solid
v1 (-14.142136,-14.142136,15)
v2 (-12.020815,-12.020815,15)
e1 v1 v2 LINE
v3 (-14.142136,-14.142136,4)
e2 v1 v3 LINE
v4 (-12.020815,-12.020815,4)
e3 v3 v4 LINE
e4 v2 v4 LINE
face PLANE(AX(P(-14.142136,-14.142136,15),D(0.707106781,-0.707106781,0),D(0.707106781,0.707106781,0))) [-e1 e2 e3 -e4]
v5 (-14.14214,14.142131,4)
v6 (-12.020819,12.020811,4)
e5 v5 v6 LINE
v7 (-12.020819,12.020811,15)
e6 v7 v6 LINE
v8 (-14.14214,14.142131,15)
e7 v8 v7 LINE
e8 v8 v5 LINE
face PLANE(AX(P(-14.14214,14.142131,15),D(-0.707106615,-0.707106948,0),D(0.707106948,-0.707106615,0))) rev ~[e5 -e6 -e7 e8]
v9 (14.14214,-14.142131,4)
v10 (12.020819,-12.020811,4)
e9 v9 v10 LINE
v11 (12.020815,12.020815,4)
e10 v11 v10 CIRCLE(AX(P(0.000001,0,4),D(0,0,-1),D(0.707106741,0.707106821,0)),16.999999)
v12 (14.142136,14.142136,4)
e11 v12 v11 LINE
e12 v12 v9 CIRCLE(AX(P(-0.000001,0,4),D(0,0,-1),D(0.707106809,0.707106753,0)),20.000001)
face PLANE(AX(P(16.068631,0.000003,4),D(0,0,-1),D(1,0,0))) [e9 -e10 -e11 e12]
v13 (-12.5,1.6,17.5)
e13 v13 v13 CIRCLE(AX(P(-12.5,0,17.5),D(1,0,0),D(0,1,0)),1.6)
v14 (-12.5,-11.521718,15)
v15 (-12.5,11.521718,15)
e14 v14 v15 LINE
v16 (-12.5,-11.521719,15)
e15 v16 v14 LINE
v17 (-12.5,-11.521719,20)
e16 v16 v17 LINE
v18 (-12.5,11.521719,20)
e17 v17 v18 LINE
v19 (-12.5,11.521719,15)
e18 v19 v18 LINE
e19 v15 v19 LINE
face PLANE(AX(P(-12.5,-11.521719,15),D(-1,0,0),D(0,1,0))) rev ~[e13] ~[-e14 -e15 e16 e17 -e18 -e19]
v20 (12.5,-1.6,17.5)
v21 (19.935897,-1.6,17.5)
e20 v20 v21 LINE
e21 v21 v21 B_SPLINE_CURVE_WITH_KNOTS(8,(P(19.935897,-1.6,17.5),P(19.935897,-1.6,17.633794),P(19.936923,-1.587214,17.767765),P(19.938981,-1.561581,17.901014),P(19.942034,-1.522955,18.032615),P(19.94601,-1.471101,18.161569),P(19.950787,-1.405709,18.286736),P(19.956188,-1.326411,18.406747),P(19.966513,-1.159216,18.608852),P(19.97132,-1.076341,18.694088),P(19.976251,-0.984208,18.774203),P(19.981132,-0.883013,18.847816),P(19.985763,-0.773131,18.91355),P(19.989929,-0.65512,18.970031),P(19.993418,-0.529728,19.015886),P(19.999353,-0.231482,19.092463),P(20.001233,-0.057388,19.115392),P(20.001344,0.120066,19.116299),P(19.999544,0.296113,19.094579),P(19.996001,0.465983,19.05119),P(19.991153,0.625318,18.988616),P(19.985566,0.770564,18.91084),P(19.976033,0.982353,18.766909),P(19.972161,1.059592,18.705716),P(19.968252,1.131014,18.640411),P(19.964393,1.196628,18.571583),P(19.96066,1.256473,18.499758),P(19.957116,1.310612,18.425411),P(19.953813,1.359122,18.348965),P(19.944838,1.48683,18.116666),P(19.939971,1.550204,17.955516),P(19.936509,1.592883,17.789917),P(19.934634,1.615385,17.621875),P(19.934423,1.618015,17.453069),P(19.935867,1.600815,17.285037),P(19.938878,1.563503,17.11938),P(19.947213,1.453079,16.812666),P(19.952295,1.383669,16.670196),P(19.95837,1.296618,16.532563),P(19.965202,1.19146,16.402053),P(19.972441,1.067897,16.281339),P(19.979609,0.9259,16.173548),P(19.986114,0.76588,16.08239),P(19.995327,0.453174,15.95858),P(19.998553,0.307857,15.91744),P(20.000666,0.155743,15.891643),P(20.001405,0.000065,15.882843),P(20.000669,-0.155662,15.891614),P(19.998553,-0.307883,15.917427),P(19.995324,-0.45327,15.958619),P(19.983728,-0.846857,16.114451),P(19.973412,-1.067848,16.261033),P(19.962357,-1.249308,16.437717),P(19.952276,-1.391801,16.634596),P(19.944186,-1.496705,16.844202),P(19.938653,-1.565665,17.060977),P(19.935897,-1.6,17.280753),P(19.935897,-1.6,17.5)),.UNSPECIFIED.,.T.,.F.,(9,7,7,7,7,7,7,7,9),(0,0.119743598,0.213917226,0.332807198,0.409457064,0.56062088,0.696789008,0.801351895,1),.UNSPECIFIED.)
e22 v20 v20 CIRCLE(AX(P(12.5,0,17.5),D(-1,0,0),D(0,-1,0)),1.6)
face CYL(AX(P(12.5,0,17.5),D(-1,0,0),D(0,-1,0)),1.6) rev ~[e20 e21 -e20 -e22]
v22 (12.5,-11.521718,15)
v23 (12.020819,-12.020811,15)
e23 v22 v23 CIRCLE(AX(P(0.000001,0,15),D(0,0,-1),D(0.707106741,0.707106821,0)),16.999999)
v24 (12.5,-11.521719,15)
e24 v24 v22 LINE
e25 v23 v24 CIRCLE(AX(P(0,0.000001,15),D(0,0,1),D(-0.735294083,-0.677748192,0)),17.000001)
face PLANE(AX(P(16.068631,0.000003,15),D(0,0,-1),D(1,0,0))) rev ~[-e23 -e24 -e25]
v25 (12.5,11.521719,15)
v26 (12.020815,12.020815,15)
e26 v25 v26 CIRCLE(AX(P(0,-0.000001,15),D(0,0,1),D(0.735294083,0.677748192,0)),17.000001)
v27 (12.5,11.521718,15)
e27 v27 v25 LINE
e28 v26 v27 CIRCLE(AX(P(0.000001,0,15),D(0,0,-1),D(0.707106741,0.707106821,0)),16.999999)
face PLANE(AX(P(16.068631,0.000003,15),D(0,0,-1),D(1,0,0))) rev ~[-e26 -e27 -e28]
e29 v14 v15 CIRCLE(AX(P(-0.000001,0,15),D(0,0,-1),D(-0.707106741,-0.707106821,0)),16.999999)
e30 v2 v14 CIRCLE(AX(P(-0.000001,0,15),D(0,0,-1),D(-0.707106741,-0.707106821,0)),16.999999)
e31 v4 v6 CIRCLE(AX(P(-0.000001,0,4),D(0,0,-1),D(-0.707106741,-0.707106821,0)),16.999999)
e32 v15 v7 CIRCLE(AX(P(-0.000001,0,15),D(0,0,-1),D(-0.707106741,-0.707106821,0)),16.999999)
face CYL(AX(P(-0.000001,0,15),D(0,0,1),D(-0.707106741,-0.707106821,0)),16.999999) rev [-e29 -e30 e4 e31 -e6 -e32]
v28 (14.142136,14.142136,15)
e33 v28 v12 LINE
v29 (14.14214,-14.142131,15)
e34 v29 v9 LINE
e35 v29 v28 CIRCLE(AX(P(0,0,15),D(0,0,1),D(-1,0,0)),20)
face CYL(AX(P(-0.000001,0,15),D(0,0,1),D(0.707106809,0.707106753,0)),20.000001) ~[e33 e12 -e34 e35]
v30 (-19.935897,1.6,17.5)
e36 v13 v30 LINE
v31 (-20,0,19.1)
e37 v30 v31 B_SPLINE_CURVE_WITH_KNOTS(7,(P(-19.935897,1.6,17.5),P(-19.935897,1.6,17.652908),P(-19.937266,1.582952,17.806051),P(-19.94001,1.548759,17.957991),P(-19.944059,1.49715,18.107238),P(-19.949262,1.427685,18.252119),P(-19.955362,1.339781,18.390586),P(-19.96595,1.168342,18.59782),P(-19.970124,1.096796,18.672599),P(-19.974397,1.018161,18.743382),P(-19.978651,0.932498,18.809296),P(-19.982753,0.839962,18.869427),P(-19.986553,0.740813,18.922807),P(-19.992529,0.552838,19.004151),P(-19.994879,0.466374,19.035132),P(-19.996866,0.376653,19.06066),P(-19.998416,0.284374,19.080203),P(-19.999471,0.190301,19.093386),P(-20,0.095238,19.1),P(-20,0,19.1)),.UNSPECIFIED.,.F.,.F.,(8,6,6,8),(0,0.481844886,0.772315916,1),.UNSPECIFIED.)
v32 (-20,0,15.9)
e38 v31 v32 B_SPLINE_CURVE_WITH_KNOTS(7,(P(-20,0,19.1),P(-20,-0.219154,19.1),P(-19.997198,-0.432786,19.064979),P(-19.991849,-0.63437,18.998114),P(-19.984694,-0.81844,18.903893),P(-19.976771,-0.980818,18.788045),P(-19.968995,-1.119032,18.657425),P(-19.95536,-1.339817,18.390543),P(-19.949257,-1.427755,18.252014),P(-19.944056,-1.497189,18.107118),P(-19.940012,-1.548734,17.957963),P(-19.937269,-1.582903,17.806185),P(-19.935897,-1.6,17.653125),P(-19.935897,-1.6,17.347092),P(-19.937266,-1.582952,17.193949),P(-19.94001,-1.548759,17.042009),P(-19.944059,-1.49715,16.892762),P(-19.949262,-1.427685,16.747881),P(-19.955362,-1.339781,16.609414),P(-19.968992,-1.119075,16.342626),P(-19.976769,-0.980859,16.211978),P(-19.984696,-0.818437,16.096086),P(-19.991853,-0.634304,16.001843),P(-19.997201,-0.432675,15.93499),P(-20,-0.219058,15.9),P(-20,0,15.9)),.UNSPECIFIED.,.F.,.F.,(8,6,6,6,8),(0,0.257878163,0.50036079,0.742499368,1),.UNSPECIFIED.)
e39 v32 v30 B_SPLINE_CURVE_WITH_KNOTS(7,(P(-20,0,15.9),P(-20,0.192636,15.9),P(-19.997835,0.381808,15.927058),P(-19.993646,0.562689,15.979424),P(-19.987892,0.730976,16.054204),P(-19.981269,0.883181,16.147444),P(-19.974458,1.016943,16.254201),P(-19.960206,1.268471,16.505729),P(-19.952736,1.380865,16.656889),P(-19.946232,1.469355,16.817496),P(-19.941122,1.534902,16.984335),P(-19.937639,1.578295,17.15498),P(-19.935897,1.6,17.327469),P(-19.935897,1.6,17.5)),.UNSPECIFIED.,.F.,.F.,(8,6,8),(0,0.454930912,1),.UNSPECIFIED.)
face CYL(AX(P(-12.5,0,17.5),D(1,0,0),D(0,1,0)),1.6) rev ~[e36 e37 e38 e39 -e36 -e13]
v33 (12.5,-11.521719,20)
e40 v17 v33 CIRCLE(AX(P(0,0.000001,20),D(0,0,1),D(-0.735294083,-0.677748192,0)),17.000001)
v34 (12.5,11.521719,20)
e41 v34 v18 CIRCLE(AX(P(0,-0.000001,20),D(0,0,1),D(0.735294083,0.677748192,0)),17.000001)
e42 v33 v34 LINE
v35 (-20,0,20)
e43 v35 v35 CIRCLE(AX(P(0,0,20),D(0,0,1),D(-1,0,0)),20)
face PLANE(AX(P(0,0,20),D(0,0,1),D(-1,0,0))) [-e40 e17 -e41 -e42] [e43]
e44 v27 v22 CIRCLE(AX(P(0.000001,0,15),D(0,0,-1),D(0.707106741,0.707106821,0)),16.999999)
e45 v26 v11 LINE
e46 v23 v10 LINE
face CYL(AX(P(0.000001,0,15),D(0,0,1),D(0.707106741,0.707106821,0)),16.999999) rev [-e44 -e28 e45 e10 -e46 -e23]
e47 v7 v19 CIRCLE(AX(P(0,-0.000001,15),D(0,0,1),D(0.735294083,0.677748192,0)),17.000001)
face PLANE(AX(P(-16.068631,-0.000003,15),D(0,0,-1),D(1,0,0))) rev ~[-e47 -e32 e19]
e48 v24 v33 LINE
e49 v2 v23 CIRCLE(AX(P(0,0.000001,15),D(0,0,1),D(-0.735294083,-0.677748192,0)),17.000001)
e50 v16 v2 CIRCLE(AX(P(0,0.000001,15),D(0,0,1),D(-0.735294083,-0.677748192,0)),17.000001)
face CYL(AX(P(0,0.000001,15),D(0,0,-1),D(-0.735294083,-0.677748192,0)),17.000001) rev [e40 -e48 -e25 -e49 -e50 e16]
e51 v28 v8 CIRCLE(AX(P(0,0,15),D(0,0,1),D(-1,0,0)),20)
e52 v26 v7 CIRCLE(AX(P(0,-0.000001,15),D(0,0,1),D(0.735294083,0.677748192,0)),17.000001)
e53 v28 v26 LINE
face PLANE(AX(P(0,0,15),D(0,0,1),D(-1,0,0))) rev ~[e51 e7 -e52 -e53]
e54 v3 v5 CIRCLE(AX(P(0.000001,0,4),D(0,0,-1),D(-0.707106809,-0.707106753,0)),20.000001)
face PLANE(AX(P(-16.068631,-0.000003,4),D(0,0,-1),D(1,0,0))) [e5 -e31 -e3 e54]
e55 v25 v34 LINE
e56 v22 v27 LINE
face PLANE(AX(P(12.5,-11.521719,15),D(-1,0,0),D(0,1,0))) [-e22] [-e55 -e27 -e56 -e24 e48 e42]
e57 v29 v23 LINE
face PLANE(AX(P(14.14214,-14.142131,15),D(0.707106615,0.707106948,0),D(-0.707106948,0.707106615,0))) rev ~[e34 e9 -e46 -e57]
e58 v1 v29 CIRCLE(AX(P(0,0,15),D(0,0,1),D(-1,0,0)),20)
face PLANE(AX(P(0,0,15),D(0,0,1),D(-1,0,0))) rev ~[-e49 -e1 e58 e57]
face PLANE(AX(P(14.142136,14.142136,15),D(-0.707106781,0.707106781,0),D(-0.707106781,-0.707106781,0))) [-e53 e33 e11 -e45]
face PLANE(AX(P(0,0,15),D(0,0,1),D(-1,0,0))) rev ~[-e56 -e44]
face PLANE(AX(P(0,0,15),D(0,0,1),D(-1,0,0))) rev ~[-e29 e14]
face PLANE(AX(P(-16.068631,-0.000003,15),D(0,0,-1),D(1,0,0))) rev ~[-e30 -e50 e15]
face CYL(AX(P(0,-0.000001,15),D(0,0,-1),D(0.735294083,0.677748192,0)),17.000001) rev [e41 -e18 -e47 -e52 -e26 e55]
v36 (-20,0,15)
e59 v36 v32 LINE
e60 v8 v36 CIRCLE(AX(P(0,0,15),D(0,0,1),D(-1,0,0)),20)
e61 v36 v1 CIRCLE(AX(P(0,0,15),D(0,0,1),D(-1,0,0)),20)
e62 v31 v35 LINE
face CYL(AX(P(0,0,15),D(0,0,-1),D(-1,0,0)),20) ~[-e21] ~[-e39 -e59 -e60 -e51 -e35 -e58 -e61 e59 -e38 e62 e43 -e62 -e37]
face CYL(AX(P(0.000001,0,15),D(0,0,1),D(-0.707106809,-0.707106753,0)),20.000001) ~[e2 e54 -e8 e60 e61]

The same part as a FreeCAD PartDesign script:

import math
import FreeCAD as App
import Part
import Sketcher

V = App.Vector
Q = App.Units.Quantity

doc = App.newDocument("Part")
params = doc.addObject("Spreadsheet::Sheet", "Params")
for row, (alias, value) in enumerate([
    ("sketch1_diameter", "40 mm"),
    ("sketch1_radius", "17.000001 mm"),
    ("pad1_length", "5 mm"),
    ("sketch2_radius", "20.000001 mm"),
    ("sketch2_radius2", "16.999999 mm"),
    ("pad2_length", "11 mm"),
    ("sketch3_diameter", "3.2 mm"),
    ("sketch4_diameter", "3.2 mm"),
], start=1):
    params.set(f"A{row}", alias)
    params.set(f"B{row}", "=" + value)
    params.setAlias(f"B{row}", alias)

body = doc.addObject("PartDesign::Body", "Body")

# Sketch on XY plane
sketch1 = doc.addObject("Sketcher::SketchObject", "Sketch")
body.addObject(sketch1)
sketch1.AttachmentSupport = (doc.XY_Plane, [""])
sketch1.MapMode = "FlatFace"
sketch1.AttachmentOffset = App.Placement(V(0, 0, 15), App.Rotation())
sketch1.addGeometry([
    Part.Circle(V(0, 0, 0), V(0, 0, 1), 20),  # 0
    Part.ArcOfCircle(Part.Circle(V(0, 0, 0), V(0, 0, 1), 17), math.radians(-137), math.radians(-43)),  # 1
    Part.LineSegment(V(-12, -12, 0), V(-12, 12, 0)),  # 2
    Part.ArcOfCircle(Part.Circle(V(0, 0, 0), V(0, 0, 1), 17), math.radians(43), math.radians(137)),  # 3
    Part.LineSegment(V(12, 12, 0), V(12, -12, 0)),  # 4
], False)
sketch1.addConstraint([
    Sketcher.Constraint("Coincident", 1, 1, 2, 1),
    Sketcher.Constraint("Coincident", 2, 2, 3, 2),
    Sketcher.Constraint("Coincident", 3, 1, 4, 1),
    Sketcher.Constraint("Coincident", 4, 2, 1, 2),
    Sketcher.Constraint("Vertical", 2),
    Sketcher.Constraint("Vertical", 4),
    Sketcher.Constraint("Coincident", 0, 3, -1, 1),
    Sketcher.Constraint("Coincident", 1, 3, -1, 1),
    Sketcher.Constraint("Coincident", 3, 3, -1, 1),
    Sketcher.Constraint("Equal", 1, 3),
    Sketcher.Constraint("Horizontal", 2, 2, 3, 1),
    Sketcher.Constraint("Diameter", 0, 40.0),
    Sketcher.Constraint("Radius", 1, 17.000001),
    Sketcher.Constraint("DistanceX", 2, 2, 3, 1, 25.0),
])
sketch1.setExpression("Constraints[11]", "Params.sketch1_diameter")
sketch1.setExpression("Constraints[12]", "Params.sketch1_radius")
pad1 = doc.addObject("PartDesign::Pad", "Pad")
body.addObject(pad1)
pad1.Profile = sketch1
pad1.setExpression("Length", "Params.pad1_length")

# Sketch on XY plane
sketch2 = doc.addObject("Sketcher::SketchObject", "Sketch001")
body.addObject(sketch2)
sketch2.AttachmentSupport = (doc.XY_Plane, [""])
sketch2.MapMode = "FlatFace"
sketch2.AttachmentOffset = App.Placement(V(0, 0, 15), App.Rotation())
sketch2.addGeometry([
    Part.ArcOfCircle(Part.Circle(V(0, 0, 0), V(0, 0, 1), 20), math.radians(135), math.radians(225)),  # 0
    Part.LineSegment(V(-14.1, 14.1, 0), V(-12, 12, 0)),  # 1
    Part.ArcOfCircle(Part.Circle(V(0, 0, 0), V(0, 0, 1), 17), math.radians(135), math.radians(225)),  # 2
    Part.LineSegment(V(-12, -12, 0), V(-14.1, -14.1, 0)),  # 3
    Part.ArcOfCircle(Part.Circle(V(0, 0, 0), V(0, 0, 1), 20), math.radians(-45), math.radians(45)),  # 4
    Part.LineSegment(V(14.1, -14.1, 0), V(12, -12, 0)),  # 5
    Part.ArcOfCircle(Part.Circle(V(0, 0, 0), V(0, 0, 1), 17), math.radians(-45), math.radians(45)),  # 6
    Part.LineSegment(V(12, 12, 0), V(14.1, 14.1, 0)),  # 7
], False)
sketch2.addConstraint([
    Sketcher.Constraint("Coincident", 0, 1, 1, 1),
    Sketcher.Constraint("Coincident", 1, 2, 2, 1),
    Sketcher.Constraint("Coincident", 2, 2, 3, 1),
    Sketcher.Constraint("Coincident", 3, 2, 0, 2),
    Sketcher.Constraint("Coincident", 4, 1, 5, 1),
    Sketcher.Constraint("Coincident", 5, 2, 6, 1),
    Sketcher.Constraint("Coincident", 6, 2, 7, 1),
    Sketcher.Constraint("Coincident", 7, 2, 4, 2),
    Sketcher.Constraint("Coincident", 0, 3, -1, 1),
    Sketcher.Constraint("Coincident", 2, 3, -1, 1),
    Sketcher.Constraint("Coincident", 4, 3, -1, 1),
    Sketcher.Constraint("Coincident", 6, 3, -1, 1),
    Sketcher.Constraint("Equal", 0, 4),
    Sketcher.Constraint("Equal", 2, 6),
    Sketcher.Constraint("Perpendicular", 1, 3),
    Sketcher.Constraint("Perpendicular", 3, 5),
    Sketcher.Constraint("Perpendicular", 5, 7),
    Sketcher.Constraint("Radius", 0, 20.000001),
    Sketcher.Constraint("Radius", 2, 16.999999),
    Sketcher.Constraint("Angle", 1, Q("-44.999986 deg")),
    Sketcher.Constraint("DistanceX", 0, 1, -1, 1, 14.14214),
    Sketcher.Constraint("DistanceX", -1, 1, 4, 1, 14.14214),
    Sketcher.Constraint("DistanceX", 2, 2, -1, 1, 12.020815),
    Sketcher.Constraint("DistanceX", -1, 1, 6, 2, 12.020815),
])
sketch2.setExpression("Constraints[17]", "Params.sketch2_radius")
sketch2.setExpression("Constraints[18]", "Params.sketch2_radius2")
pad2 = doc.addObject("PartDesign::Pad", "Pad001")
body.addObject(pad2)
pad2.Profile = sketch2
pad2.setExpression("Length", "Params.pad2_length")
pad2.Reversed = True

# Sketch on YZ plane
sketch3 = doc.addObject("Sketcher::SketchObject", "Sketch002")
body.addObject(sketch3)
sketch3.AttachmentSupport = (doc.YZ_Plane, [""])
sketch3.MapMode = "FlatFace"
sketch3.AttachmentOffset = App.Placement(V(0, 0, -12.5), App.Rotation())
sketch3.addGeometry(Part.Circle(V(0, 17.5, 0), V(0, 0, 1), 1.6), False)
sketch3.addConstraint([
    Sketcher.Constraint("PointOnObject", 0, 3, -2),
    Sketcher.Constraint("Diameter", 0, 3.2),
    Sketcher.Constraint("DistanceY", -1, 1, 0, 3, 17.5),
])
sketch3.setExpression("Constraints[1]", "Params.sketch3_diameter")
pocket1 = doc.addObject("PartDesign::Pocket", "Pocket")
body.addObject(pocket1)
pocket1.Profile = sketch3
pocket1.Type = "ThroughAll"

# Sketch on YZ plane
sketch4 = doc.addObject("Sketcher::SketchObject", "Sketch003")
body.addObject(sketch4)
sketch4.AttachmentSupport = (doc.YZ_Plane, [""])
sketch4.MapMode = "FlatFace"
sketch4.AttachmentOffset = App.Placement(V(0, 0, 12.5), App.Rotation())
sketch4.addGeometry(Part.Circle(V(0, 17.5, 0), V(0, 0, 1), 1.6), False)
sketch4.addConstraint([
    Sketcher.Constraint("PointOnObject", 0, 3, -2),
    Sketcher.Constraint("Diameter", 0, 3.2),
    Sketcher.Constraint("DistanceY", -1, 1, 0, 3, 17.5),
])
sketch4.setExpression("Constraints[1]", "Params.sketch4_diameter")
pocket2 = doc.addObject("PartDesign::Pocket", "Pocket001")
body.addObject(pocket2)
pocket2.Profile = sketch4
pocket2.Type = "ThroughAll"
pocket2.Reversed = True

doc.recompute()
